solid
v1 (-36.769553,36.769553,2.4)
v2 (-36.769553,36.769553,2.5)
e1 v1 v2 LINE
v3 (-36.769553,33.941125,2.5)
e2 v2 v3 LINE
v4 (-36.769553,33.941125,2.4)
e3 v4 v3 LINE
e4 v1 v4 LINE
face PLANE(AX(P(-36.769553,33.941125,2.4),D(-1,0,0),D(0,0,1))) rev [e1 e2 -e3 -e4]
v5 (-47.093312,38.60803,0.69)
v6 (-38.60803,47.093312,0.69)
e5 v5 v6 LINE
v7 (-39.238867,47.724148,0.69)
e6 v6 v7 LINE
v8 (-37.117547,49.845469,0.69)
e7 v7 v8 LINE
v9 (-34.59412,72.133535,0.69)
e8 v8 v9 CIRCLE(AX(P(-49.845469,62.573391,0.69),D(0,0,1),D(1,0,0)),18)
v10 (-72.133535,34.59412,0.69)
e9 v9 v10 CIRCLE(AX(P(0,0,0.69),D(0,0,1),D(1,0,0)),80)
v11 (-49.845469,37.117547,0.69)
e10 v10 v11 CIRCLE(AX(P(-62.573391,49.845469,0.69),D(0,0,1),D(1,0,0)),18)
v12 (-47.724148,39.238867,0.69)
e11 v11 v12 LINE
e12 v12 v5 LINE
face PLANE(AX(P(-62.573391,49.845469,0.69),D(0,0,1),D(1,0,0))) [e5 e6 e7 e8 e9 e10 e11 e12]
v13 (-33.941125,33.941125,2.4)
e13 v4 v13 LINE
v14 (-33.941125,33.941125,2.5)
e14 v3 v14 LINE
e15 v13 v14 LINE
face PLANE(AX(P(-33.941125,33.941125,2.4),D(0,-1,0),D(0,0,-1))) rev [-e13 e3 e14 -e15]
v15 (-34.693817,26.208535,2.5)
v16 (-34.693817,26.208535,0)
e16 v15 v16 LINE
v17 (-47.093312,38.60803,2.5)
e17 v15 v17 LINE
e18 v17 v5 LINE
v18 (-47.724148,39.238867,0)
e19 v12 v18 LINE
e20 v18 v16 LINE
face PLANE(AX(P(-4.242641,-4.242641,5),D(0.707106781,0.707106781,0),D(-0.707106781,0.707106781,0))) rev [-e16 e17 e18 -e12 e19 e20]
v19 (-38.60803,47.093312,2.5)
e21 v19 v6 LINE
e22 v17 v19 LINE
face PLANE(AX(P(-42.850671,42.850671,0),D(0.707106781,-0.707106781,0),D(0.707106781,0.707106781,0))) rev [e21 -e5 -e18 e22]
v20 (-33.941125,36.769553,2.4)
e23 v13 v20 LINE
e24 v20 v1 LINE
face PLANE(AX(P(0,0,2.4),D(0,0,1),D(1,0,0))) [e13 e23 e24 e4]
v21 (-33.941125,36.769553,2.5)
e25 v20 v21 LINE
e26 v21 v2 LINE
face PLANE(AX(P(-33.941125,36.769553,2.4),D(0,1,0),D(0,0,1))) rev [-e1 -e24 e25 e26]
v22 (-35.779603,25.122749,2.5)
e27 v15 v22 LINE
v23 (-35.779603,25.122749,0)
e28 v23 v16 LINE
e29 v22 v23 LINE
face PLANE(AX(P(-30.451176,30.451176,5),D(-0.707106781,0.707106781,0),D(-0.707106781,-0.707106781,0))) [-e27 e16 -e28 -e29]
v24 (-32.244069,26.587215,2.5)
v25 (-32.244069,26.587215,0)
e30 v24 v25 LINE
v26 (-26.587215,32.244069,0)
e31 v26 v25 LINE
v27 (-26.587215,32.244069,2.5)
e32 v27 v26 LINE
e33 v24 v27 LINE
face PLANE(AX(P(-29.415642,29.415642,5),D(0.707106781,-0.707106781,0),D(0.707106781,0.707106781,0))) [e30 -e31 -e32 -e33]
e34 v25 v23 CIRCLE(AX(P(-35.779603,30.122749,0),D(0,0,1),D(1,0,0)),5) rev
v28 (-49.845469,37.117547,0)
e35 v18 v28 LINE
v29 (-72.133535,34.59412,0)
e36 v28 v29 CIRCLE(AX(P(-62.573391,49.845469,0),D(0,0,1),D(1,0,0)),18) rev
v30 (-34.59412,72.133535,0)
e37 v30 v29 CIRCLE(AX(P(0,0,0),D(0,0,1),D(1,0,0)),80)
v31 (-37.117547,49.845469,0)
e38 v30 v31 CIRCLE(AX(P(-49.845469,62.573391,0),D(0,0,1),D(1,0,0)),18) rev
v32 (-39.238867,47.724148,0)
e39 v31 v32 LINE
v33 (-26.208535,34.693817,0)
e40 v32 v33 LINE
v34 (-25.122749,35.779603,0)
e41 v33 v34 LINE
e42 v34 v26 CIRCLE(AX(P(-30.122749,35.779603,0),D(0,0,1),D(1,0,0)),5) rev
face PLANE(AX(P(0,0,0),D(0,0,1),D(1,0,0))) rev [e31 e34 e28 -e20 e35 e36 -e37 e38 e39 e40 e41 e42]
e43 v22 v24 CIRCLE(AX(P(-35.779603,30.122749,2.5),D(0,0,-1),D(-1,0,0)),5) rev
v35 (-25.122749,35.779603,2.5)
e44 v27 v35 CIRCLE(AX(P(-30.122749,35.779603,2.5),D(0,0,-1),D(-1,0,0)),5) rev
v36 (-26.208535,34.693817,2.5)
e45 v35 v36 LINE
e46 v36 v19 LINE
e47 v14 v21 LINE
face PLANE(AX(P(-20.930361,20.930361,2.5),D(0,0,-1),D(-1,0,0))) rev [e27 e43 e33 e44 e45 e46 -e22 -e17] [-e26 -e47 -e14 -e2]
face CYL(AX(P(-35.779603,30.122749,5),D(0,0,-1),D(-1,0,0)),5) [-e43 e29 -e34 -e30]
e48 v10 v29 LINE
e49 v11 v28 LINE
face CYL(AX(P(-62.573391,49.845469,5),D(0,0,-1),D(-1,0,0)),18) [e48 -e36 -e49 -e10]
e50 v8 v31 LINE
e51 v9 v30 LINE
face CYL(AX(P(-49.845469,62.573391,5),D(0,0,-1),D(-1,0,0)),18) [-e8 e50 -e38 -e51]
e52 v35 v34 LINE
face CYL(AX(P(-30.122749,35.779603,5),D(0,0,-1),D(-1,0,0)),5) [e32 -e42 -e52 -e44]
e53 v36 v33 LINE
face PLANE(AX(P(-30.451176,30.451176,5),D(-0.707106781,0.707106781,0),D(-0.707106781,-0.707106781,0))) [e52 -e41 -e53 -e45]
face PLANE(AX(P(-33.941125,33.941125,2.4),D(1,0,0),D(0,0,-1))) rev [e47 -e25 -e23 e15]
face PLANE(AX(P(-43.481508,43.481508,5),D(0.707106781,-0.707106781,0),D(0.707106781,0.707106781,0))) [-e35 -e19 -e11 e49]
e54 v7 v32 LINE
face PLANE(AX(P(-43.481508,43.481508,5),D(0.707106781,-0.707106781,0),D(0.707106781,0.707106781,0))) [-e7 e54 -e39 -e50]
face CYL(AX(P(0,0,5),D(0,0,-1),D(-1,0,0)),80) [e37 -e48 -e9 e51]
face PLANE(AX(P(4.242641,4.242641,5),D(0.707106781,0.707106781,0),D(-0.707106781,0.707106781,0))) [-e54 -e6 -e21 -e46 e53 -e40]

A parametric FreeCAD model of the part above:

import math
import FreeCAD as App
import Part
import Sketcher

V = App.Vector
Q = App.Units.Quantity

doc = App.newDocument("Part")
body = doc.addObject("PartDesign::Body", "Body")

# Sketch on XY plane
sketch1 = body.newObject("Sketcher::SketchObject", "Sketch")
sketch1.AttachmentSupport = (doc.getObject("XY_Plane"), [""])
sketch1.MapMode = "FlatFace"
sketch1.addGeometry([
    Part.LineSegment(V(-47.724148, 39.238867, 0), V(-34.693817, 26.208535, 0)),  # 0
    Part.LineSegment(V(-34.693817, 26.208535, 0), V(-35.779603, 25.122749, 0)),  # 1
    Part.ArcOfCircle(Part.Circle(V(-35.779603, 30.122749, 0), V(0, 0, 1), 5), math.radians(-90), math.radians(-45)),  # 2
    Part.LineSegment(V(-32.244069, 26.587215, 0), V(-26.587215, 32.244069, 0)),  # 3
    Part.ArcOfCircle(Part.Circle(V(-30.122749, 35.779603, 0), V(0, 0, 1), 5), math.radians(-45), math.radians(0)),  # 4
    Part.LineSegment(V(-25.122749, 35.779603, 0), V(-26.208535, 34.693817, 0)),  # 5
    Part.LineSegment(V(-26.208535, 34.693817, 0), V(-39.238867, 47.724148, 0)),  # 6
    Part.LineSegment(V(-39.238867, 47.724148, 0), V(-37.117547, 49.845469, 0)),  # 7
    Part.ArcOfCircle(Part.Circle(V(-49.845469, 62.573391, 0), V(0, 0, 1), 18), math.radians(-45), math.radians(32.0811)),  # 8
    Part.ArcOfCircle(Part.Circle(V(0, 0, 0), V(0, 0, 1), 80), math.radians(115.621651), math.radians(128.54055)),  # 9
    Part.ArcOfCircle(Part.Circle(V(0, 0, 0), V(0, 0, 1), 80), math.radians(128.54055), math.radians(141.45945)),  # 10
    Part.ArcOfCircle(Part.Circle(V(0, 0, 0), V(0, 0, 1), 80), math.radians(141.45945), math.radians(154.378349)),  # 11
    Part.ArcOfCircle(Part.Circle(V(-62.573391, 49.845469, 0), V(0, 0, 1), 18), math.radians(-122.0811), math.radians(-45)),  # 12
    Part.LineSegment(V(-49.845469, 37.117547, 0), V(-47.724148, 39.238867, 0)),  # 13
], False)
sketch1.addConstraint([
    Sketcher.Constraint("Coincident", 0, 2, 1, 1),
    Sketcher.Constraint("Coincident", 1, 2, 2, 1),
    Sketcher.Constraint("Tangent", 2, 2, 3, 1),
    Sketcher.Constraint("Tangent", 3, 2, 4, 1),
    Sketcher.Constraint("Coincident", 4, 2, 5, 1),
    Sketcher.Constraint("Coincident", 5, 2, 6, 1),
    Sketcher.Constraint("Coincident", 6, 2, 7, 1),
    Sketcher.Constraint("Tangent", 7, 2, 8, 1),
    Sketcher.Constraint("Coincident", 8, 2, 9, 1),
    Sketcher.Constraint("Tangent", 9, 2, 10, 1),
    Sketcher.Constraint("Tangent", 10, 2, 11, 1),
    Sketcher.Constraint("Coincident", 11, 2, 12, 1),
    Sketcher.Constraint("Tangent", 12, 2, 13, 1),
    Sketcher.Constraint("Coincident", 13, 2, 0, 1),
    Sketcher.Constraint("Coincident", 9, 3, -1, 1),
    Sketcher.Constraint("Coincident", 11, 3, -1, 1),
    Sketcher.Constraint("Coincident", 9, 2, 8, 3),
    Sketcher.Constraint("Coincident", 10, 2, 12, 3),
    Sketcher.Constraint("Equal", 2, 4),
    Sketcher.Constraint("Equal", 8, 12),
    Sketcher.Constraint("Perpendicular", 0, 1),
    Sketcher.Constraint("Parallel", 1, 3),
    Sketcher.Constraint("Parallel", 3, 5),
    Sketcher.Constraint("Perpendicular", 5, 6),
    Sketcher.Constraint("Perpendicular", 6, 7),
    Sketcher.Constraint("Parallel", 7, 13),
    Sketcher.Constraint("Horizontal", 12, 3, 7, 2),
    Sketcher.Constraint("Vertical", 2, 3, 1, 2),
    Sketcher.Constraint("Vertical", 9, 2, 12, 2),
    Sketcher.Constraint("Equal", 1, 5),
    Sketcher.Constraint("Equal", 0, 6),
    Sketcher.Constraint("Equal", 7, 13),
    Sketcher.Constraint("Radius", 2, 5.0),
    Sketcher.Constraint("Radius", 8, 18.0),
    Sketcher.Constraint("Radius", 9, 80.0),
    Sketcher.Constraint("Angle", 0, Q("-45 deg")),
    Sketcher.Constraint("Distance", 3, 8.0),
    Sketcher.Constraint("Distance", 7, 3.0),
    Sketcher.Constraint("DistanceY", 2, 3, 6, 2, 17.6014),
])
pad1 = body.newObject("PartDesign::Pad", "Pad")
pad1.Profile = sketch1
pad1.Length = 5

# Sketch on an angled plane
sketch2 = body.newObject("Sketcher::SketchObject", "Sketch001")
sketch2.Placement = App.Placement(V(-54.164379, 54.164379, 0), App.Rotation(V(-0.707106781, -0.707106781, 0), V(0, 0, -0.999999999), V(0.707106781, -0.707106781, 0), "ZXY"))
sketch2.addGeometry([
    Part.LineSegment(V(-26.544375, -1.45, 0), V(-26.544375, -3.55, 0)),
    Part.LineSegment(V(-26.544375, -3.55, 0), V(26.544375, -3.55, 0)),
    Part.LineSegment(V(26.544375, -3.55, 0), V(26.544375, -1.45, 0)),
    Part.LineSegment(V(26.544375, -1.45, 0), V(-26.544375, -1.45, 0)),
], False)
sketch2.addConstraint([
    Sketcher.Constraint("Coincident", 0, 2, 1, 1),
    Sketcher.Constraint("Coincident", 1, 2, 2, 1),
    Sketcher.Constraint("Coincident", 2, 2, 3, 1),
    Sketcher.Constraint("Coincident", 3, 2, 0, 1),
    Sketcher.Constraint("Vertical", 0),
    Sketcher.Constraint("Horizontal", 1),
    Sketcher.Constraint("Vertical", 2),
    Sketcher.Constraint("Horizontal", 3),
    Sketcher.Constraint("DistanceY", 0, 2, 0, 1, 2.1),
    Sketcher.Constraint("DistanceY", 0, 2, -1, 1, 3.55),
    Sketcher.Constraint("DistanceX", 1, 1, 1, 2, 53.08875),
    Sketcher.Constraint("DistanceX", 0, 2, -1, 1, 26.544375),
])
pocket1 = body.newObject("PartDesign::Pocket", "Pocket")
pocket1.Profile = sketch2
pocket1.Length = 16
pocket1.Reversed = True

# Sketch on an angled plane
sketch3 = body.newObject("Sketcher::SketchObject", "Sketch002")
sketch3.Placement = App.Placement(V(-57.699913, 57.699913, 0), App.Rotation(V(-0.707106781, -0.707106781, 0), V(0, 0, -0.999999999), V(0.707106781, -0.707106781, 0), "ZXY"))
sketch3.addGeometry([
    Part.LineSegment(V(27.054153, -2.5, 0), V(-28.074505, -2.5, 0)),
    Part.LineSegment(V(-28.074505, -2.5, 0), V(-28.074505, -6.972922, 0)),
    Part.LineSegment(V(-28.074505, -6.972922, 0), V(27.054153, -6.972922, 0)),
    Part.LineSegment(V(27.054153, -6.972922, 0), V(27.054153, -2.5, 0)),
], False)
sketch3.addConstraint([
    Sketcher.Constraint("Coincident", 0, 2, 1, 1),
    Sketcher.Constraint("Coincident", 1, 2, 2, 1),
    Sketcher.Constraint("Coincident", 2, 2, 3, 1),
    Sketcher.Constraint("Coincident", 3, 2, 0, 1),
    Sketcher.Constraint("Horizontal", 0),
    Sketcher.Constraint("Vertical", 1),
    Sketcher.Constraint("Horizontal", 2),
    Sketcher.Constraint("Vertical", 3),
    Sketcher.Constraint("DistanceY", 0, 2, -1, 1, 2.5),
    Sketcher.Constraint("DistanceY", 1, 2, 1, 1, 4.472922),
    Sketcher.Constraint("DistanceX", 0, 2, 0, 1, 55.128657),
    Sketcher.Constraint("DistanceX", 0, 2, -1, 1, 28.074505),
])
pocket2 = body.newObject("PartDesign::Pocket", "Pocket001")
pocket2.Profile = sketch3
pocket2.Length = 52
pocket2.Reversed = True

# Sketch on an angled plane
sketch4 = body.newObject("Sketcher::SketchObject", "Sketch003")
sketch4.Placement = App.Placement(V(-54.164379, 54.164379, 0), App.Rotation(V(0, 0, -1), V(0.707106781, 0.707106781, 0), V(0.707106781, -0.707106781, 0), "ZXY"))
sketch4.addGeometry([
    Part.LineSegment(V(-2.5, 23.074661, 0), V(-2.5, -23.074661, 0)),
    Part.LineSegment(V(-2.5, -23.074661, 0), V(-1.45, -23.074661, 0)),
    Part.LineSegment(V(-1.45, -23.074661, 0), V(-1.45, 23.074661, 0)),
    Part.LineSegment(V(-1.45, 23.074661, 0), V(-2.5, 23.074661, 0)),
], False)
sketch4.addConstraint([
    Sketcher.Constraint("Coincident", 0, 2, 1, 1),
    Sketcher.Constraint("Coincident", 1, 2, 2, 1),
    Sketcher.Constraint("Coincident", 2, 2, 3, 1),
    Sketcher.Constraint("Coincident", 3, 2, 0, 1),
    Sketcher.Constraint("Vertical", 0),
    Sketcher.Constraint("Horizontal", 1),
    Sketcher.Constraint("Vertical", 2),
    Sketcher.Constraint("Horizontal", 3),
    Sketcher.Constraint("DistanceX", 1, 1, 1, 2, 1.05),
    Sketcher.Constraint("DistanceX", 0, 2, -1, 1, 2.5),
    Sketcher.Constraint("DistanceY", 0, 2, 0, 1, 46.149323),
    Sketcher.Constraint("DistanceY", 0, 2, -1, 1, 23.074661),
])
pocket3 = body.newObject("PartDesign::Pocket", "Pocket002")
pocket3.Profile = sketch4
pocket3.Length = 10

# Sketch on XY plane
sketch5 = body.newObject("Sketcher::SketchObject", "Sketch004")
sketch5.AttachmentSupport = (doc.getObject("XY_Plane"), [""])
sketch5.MapMode = "FlatFace"
sketch5.AttachmentOffset = App.Placement(V(0, 0, 0.69), App.Rotation())
sketch5.addGeometry([
    Part.LineSegment(V(-49.845469, 37.117547, 0), V(-47.724148, 39.238867, 0)),  # 0
    Part.LineSegment(V(-47.724148, 39.238867, 0), V(-47.093312, 38.60803, 0)),  # 1
    Part.LineSegment(V(-47.093312, 38.60803, 0), V(-38.60803, 47.093312, 0)),  # 2
    Part.LineSegment(V(-38.60803, 47.093312, 0), V(-39.238867, 47.724148, 0)),  # 3
    Part.LineSegment(V(-39.238867, 47.724148, 0), V(-37.117547, 49.845469, 0)),  # 4
    Part.ArcOfCircle(Part.Circle(V(-49.845469, 62.573391, 0), V(0, 0, 1), 18), math.radians(-45), math.radians(32.0811)),  # 5
    Part.ArcOfCircle(Part.Circle(V(0, 0, 0), V(0, 0, 1), 80), math.radians(115.621651), math.radians(154.378349)),  # 6
    Part.ArcOfCircle(Part.Circle(V(-62.573391, 49.845469, 0), V(0, 0, 1), 18), math.radians(-122.0811), math.radians(-45)),  # 7
], False)
sketch5.addConstraint([
    Sketcher.Constraint("Coincident", 0, 2, 1, 1),
    Sketcher.Constraint("Coincident", 1, 2, 2, 1),
    Sketcher.Constraint("Coincident", 2, 2, 3, 1),
    Sketcher.Constraint("Coincident", 3, 2, 4, 1),
    Sketcher.Constraint("Tangent", 4, 2, 5, 1),
    Sketcher.Constraint("Coincident", 5, 2, 6, 1),
    Sketcher.Constraint("Coincident", 6, 2, 7, 1),
    Sketcher.Constraint("Tangent", 7, 2, 0, 1),
    Sketcher.Constraint("Coincident", 6, 3, -1, 1),
    Sketcher.Constraint("Equal", 5, 7),
    Sketcher.Constraint("Perpendicular", 0, 1),
    Sketcher.Constraint("Perpendicular", 1, 2),
    Sketcher.Constraint("Perpendicular", 2, 3),
    Sketcher.Constraint("Perpendicular", 3, 4),
    Sketcher.Constraint("Horizontal", 7, 3, 4, 2),
    Sketcher.Constraint("Vertical", 5, 3, 7, 2),
    Sketcher.Constraint("Equal", 1, 3),
    Sketcher.Constraint("Equal", 0, 4),
    Sketcher.Constraint("Radius", 5, 18.0),
    Sketcher.Constraint("Radius", 6, 80.0),
    Sketcher.Constraint("Distance", 0, 3.0),
    Sketcher.Constraint("DistanceX", 5, 3, -1, 1, 49.845469),
    Sketcher.Constraint("DistanceY", -1, 1, 5, 3, 62.573391),
    Sketcher.Constraint("DistanceX", 1, 2, -1, 1, 47.093312),
])
pocket4 = body.newObject("PartDesign::Pocket", "Pocket003")
pocket4.Profile = sketch5
pocket4.Length = 0.76
pocket4.Reversed = True

# Sketch on XY plane
sketch6 = body.newObject("Sketcher::SketchObject", "Sketch005")
sketch6.AttachmentSupport = (doc.getObject("XY_Plane"), [""])
sketch6.MapMode = "FlatFace"
sketch6.AttachmentOffset = App.Placement(V(0, 0, 2.5), App.Rotation())
sketch6.addGeometry([
    Part.LineSegment(V(-36.769553, 36.769553, 0), V(-36.769553, 33.941125, 0)),
    Part.LineSegment(V(-36.769553, 33.941125, 0), V(-33.941125, 33.941125, 0)),
    Part.LineSegment(V(-33.941125, 33.941125, 0), V(-33.941125, 36.769553, 0)),
    Part.LineSegment(V(-33.941125, 36.769553, 0), V(-36.769553, 36.769553, 0)),
], False)
sketch6.addConstraint([
    Sketcher.Constraint("Coincident", 0, 2, 1, 1),
    Sketcher.Constraint("Coincident", 1, 2, 2, 1),
    Sketcher.Constraint("Coincident", 2, 2, 3, 1),
    Sketcher.Constraint("Coincident", 3, 2, 0, 1),
    Sketcher.Constraint("Vertical", 0),
    Sketcher.Constraint("Horizontal", 1),
    Sketcher.Constraint("Vertical", 2),
    Sketcher.Constraint("Horizontal", 3),
    Sketcher.Constraint("Equal", 3, 0),
    Sketcher.Constraint("DistanceX", 1, 1, 1, 2, 2.828427),
    Sketcher.Constraint("DistanceX", 0, 2, -1, 1, 36.769553),
    Sketcher.Constraint("DistanceY", -1, 1, 0, 2, 33.941125),
])
pocket5 = body.newObject("PartDesign::Pocket", "Pocket004")
pocket5.Profile = sketch6
pocket5.Length = 0.1

doc.recompute()
